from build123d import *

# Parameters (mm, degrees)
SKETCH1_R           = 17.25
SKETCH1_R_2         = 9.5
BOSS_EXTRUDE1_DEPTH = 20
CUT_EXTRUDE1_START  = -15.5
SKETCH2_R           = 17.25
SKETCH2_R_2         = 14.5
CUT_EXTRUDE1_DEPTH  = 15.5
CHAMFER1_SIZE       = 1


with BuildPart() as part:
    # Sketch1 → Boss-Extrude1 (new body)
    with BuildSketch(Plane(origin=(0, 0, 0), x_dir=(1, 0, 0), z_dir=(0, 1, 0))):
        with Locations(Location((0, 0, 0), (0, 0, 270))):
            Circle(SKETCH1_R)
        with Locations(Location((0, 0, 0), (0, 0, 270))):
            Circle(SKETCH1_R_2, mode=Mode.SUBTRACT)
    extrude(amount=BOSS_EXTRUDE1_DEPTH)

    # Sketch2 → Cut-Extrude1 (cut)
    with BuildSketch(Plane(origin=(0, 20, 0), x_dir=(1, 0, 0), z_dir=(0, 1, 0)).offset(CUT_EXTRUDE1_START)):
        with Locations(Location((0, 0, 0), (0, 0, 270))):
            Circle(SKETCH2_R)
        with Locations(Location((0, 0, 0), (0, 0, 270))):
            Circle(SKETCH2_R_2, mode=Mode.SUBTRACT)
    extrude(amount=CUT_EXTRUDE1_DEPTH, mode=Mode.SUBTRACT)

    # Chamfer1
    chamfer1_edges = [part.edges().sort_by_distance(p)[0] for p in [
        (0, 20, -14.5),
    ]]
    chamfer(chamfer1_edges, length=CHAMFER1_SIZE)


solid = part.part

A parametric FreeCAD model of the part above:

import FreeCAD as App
import Part
import Sketcher
from FreeCAD import Vector
Q = App.Units.Quantity


def edges_at(feature, points):
    """Names of the edges that pass closest to the given points."""
    edges = feature.Shape.Edges
    near = lambda p: min(range(len(edges)), key=lambda i: edges[i].distToShape(Part.Vertex(*p))[0])
    return sorted({f"Edge{near(p) + 1}" for p in points})

doc = App.newDocument("Part")
body = doc.addObject("PartDesign::Body", "Body")

# Sketch on XZ plane
sketch1 = doc.addObject("Sketcher::SketchObject", "Sketch")
body.addObject(sketch1)
sketch1.AttachmentSupport = (doc.XZ_Plane, [""])
sketch1.MapMode = "FlatFace"
sketch1.addGeometry([
    Part.Circle(Vector(0, 0, 0), Vector(0, 0, 1), 17),
    Part.Circle(Vector(0, 0, 0), Vector(0, 0, 1), 10),
], False)
sketch1.addConstraint([
    Sketcher.Constraint("Coincident", 0, 3, -1, 1),
    Sketcher.Constraint("Coincident", 1, 3, -1, 1),
    Sketcher.Constraint("Diameter", 1, Q("19 mm")),
    Sketcher.Constraint("Diameter", 0, Q("34.5 mm")),
])
pad1 = doc.addObject("PartDesign::Pad", "Pad")
body.addObject(pad1)
pad1.Profile = sketch1
pad1.Length = 20
pad1.Reversed = True

# Sketch on XZ plane
sketch2 = doc.addObject("Sketcher::SketchObject", "Sketch001")
body.addObject(sketch2)
sketch2.AttachmentSupport = (doc.XZ_Plane, [""])
sketch2.MapMode = "FlatFace"
sketch2.AttachmentOffset = App.Placement(Vector(0, 0, -4.5), App.Rotation())
sketch2.addGeometry([
    Part.Circle(Vector(0, 0, 0), Vector(0, 0, 1), 17),
    Part.Circle(Vector(0, 0, 0), Vector(0, 0, 1), 14),
], False)
sketch2.addConstraint([
    Sketcher.Constraint("Coincident", 0, 3, -1, 1),
    Sketcher.Constraint("Coincident", 1, 3, -1, 1),
    Sketcher.Constraint("Diameter", 1, Q("29 mm")),
    Sketcher.Constraint("Diameter", 0, Q("34.5 mm")),
])
pocket1 = doc.addObject("PartDesign::Pocket", "Pocket")
body.addObject(pocket1)
pocket1.Profile = sketch2
pocket1.Length = 15.5
doc.recompute()

chamfer = doc.addObject("PartDesign::Chamfer", "Chamfer")
body.addObject(chamfer)
chamfer.Base = (pocket1, edges_at(pocket1, [(0, 20, -14.5)]))
chamfer.Size = 1

doc.recompute()
